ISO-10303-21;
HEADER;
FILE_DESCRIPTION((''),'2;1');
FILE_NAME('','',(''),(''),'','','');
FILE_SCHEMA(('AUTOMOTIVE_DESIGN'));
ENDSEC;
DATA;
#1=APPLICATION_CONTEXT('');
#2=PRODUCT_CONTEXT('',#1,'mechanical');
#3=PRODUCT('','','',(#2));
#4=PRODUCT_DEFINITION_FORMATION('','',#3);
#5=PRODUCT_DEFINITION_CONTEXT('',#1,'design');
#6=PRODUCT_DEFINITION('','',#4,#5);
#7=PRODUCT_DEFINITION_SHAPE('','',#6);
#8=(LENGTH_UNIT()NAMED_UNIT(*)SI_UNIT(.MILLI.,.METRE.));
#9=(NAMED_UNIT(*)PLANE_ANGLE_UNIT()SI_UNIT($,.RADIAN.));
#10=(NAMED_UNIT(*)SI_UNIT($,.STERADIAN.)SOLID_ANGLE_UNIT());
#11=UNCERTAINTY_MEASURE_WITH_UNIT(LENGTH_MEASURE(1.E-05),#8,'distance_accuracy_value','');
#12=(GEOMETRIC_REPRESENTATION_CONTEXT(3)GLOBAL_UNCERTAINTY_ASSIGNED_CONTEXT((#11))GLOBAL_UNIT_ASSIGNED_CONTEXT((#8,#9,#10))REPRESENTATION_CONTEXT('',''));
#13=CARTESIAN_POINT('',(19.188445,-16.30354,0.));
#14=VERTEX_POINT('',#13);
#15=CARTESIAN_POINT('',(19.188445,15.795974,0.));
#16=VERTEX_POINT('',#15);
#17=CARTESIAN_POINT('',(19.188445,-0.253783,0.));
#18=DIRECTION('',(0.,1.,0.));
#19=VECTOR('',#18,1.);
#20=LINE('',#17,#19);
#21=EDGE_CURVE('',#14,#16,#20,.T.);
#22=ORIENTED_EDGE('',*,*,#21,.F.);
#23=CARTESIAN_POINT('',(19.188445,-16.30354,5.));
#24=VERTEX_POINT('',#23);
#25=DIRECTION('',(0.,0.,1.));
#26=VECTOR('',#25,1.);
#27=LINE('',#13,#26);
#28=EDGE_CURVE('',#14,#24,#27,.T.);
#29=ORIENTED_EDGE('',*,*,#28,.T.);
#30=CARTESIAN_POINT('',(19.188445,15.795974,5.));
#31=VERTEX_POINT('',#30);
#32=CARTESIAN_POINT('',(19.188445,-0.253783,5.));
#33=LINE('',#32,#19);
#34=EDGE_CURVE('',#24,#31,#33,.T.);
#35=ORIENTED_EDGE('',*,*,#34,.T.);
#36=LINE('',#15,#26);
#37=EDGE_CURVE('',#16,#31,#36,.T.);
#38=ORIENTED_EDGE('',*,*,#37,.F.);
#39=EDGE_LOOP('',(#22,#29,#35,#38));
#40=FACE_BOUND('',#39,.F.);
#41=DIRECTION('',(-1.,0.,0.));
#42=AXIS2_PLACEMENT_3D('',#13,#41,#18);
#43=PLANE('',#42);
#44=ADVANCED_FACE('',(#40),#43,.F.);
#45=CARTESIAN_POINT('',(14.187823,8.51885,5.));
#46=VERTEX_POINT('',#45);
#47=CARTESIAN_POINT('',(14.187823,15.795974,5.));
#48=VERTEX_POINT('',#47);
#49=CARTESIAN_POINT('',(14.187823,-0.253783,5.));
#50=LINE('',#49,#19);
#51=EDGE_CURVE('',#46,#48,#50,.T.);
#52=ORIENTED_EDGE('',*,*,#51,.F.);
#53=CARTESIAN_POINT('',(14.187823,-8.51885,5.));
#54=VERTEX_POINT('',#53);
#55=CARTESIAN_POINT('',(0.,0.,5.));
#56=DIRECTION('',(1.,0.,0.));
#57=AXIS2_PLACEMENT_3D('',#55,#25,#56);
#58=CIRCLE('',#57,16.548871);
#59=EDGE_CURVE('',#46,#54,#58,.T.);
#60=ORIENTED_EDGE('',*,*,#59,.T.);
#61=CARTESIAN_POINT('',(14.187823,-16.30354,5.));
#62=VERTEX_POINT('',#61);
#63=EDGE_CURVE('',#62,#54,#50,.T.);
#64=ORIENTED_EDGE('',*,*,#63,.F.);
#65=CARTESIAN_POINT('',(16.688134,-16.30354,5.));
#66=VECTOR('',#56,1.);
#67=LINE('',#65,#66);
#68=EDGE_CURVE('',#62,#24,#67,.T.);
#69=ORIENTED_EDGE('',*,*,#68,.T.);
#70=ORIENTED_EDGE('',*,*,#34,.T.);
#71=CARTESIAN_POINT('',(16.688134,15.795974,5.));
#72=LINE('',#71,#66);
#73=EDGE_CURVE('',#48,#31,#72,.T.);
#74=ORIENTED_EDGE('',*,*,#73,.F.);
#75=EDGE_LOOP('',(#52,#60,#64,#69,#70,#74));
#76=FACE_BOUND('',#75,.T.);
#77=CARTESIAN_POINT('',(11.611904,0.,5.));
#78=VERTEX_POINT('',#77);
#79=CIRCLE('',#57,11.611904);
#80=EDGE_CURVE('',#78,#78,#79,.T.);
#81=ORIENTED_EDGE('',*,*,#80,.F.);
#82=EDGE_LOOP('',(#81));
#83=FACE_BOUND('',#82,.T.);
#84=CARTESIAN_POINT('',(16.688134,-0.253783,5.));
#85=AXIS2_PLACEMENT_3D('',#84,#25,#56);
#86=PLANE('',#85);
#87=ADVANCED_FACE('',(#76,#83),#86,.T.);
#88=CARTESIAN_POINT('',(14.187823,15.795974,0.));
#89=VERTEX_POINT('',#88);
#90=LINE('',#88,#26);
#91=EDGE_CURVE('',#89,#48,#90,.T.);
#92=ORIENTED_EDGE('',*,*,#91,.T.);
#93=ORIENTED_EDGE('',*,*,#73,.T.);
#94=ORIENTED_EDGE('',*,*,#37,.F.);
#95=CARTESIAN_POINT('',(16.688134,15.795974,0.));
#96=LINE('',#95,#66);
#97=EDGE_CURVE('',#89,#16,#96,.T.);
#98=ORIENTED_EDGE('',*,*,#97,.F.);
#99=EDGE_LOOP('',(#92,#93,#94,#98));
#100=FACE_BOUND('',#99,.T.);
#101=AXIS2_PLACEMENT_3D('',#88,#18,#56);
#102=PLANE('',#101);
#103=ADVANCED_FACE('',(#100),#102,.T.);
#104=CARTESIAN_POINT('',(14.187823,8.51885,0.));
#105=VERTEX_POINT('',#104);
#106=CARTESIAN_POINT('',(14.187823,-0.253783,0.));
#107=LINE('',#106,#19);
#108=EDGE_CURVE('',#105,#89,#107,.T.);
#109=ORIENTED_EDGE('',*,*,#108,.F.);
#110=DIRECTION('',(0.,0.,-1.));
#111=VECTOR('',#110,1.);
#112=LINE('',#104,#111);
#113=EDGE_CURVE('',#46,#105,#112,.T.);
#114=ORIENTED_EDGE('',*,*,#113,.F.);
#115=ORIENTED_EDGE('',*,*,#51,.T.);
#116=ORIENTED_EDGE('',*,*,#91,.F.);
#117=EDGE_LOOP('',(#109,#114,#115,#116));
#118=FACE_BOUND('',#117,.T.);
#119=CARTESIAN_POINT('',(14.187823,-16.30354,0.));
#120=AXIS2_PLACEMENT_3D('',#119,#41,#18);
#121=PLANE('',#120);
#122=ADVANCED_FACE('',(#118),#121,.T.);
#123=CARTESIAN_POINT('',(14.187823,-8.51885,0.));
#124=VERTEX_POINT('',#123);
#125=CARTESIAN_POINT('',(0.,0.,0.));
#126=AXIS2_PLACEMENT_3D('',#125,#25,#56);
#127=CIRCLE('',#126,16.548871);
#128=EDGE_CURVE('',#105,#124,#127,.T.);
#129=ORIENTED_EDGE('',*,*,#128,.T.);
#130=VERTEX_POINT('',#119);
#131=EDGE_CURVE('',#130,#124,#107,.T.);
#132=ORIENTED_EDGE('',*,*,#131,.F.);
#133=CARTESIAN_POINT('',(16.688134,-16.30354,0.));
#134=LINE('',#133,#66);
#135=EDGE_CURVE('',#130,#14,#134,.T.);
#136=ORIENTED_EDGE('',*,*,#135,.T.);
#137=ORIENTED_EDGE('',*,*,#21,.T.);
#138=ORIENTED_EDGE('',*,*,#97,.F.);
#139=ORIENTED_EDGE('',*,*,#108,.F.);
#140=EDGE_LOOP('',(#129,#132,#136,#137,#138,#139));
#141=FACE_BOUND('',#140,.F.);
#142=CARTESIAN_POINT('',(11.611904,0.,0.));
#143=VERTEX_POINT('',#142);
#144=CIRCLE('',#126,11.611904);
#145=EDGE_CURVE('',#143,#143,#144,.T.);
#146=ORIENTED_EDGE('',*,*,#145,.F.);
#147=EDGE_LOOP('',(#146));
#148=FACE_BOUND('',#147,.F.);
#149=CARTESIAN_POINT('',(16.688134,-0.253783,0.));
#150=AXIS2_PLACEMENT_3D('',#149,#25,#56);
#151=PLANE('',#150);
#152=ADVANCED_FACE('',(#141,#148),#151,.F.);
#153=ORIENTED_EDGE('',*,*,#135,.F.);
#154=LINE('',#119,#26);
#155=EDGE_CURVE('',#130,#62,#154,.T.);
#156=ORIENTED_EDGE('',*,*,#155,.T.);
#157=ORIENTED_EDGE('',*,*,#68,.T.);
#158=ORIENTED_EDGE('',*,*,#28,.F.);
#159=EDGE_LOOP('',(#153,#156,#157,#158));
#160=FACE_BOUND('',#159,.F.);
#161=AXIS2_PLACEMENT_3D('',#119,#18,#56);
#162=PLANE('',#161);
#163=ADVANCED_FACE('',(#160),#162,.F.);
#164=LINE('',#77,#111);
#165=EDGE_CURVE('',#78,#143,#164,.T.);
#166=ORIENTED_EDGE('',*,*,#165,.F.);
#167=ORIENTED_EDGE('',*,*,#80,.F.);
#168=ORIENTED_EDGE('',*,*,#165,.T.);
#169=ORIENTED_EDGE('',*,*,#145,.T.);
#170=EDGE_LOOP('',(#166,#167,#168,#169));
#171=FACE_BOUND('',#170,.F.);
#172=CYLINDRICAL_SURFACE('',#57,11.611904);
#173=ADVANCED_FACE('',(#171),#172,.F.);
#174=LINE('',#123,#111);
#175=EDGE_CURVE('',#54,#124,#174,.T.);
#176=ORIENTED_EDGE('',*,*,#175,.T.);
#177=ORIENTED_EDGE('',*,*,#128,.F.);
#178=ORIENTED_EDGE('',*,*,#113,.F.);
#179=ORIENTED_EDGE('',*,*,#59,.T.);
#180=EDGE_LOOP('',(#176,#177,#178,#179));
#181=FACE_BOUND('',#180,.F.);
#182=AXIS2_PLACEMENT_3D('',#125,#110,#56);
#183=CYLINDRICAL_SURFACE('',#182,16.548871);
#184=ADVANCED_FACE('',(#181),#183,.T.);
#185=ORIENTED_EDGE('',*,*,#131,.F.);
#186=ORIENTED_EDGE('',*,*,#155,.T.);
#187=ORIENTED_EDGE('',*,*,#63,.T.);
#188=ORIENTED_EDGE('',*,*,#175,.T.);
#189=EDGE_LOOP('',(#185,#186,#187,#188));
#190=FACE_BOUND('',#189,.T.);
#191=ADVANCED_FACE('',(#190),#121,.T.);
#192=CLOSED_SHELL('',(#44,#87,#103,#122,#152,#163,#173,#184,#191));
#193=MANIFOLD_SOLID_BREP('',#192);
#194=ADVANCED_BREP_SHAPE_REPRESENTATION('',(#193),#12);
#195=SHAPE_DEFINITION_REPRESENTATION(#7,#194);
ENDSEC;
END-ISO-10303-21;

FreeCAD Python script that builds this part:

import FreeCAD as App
import Part
import Sketcher
Q = App.Units.Quantity


def add_polygon(sketch, points):
    """Adds a closed chain of lines whose ends are joined by coincident constraints."""
    first, n = sketch.GeometryCount, len(points)
    for a, b in zip(points, points[1:] + points[:1]):
        sketch.addGeometry(Part.LineSegment(App.Vector(*a, 0), App.Vector(*b, 0)), False)
    for i in range(n):
        sketch.addConstraint(Sketcher.Constraint("Coincident", first + i, 2, first + (i + 1) % n, 1))

doc = App.newDocument("Part")
body = doc.addObject("PartDesign::Body", "Body")

# Sketch on XY plane
sketch1 = doc.addObject("Sketcher::SketchObject", "Sketch")
body.addObject(sketch1)
sketch1.AttachmentSupport = (doc.XY_Plane, [""])
sketch1.MapMode = "FlatFace"
sketch1.addGeometry(Part.Circle(App.Vector(0, 0, 0), App.Vector(0, 0, 1), 17), False)
sketch1.addConstraint([
    Sketcher.Constraint("Coincident", 0, 3, -1, 1),
    Sketcher.Constraint("Diameter", 0, Q("33.097742 mm")),
])
pad1 = doc.addObject("PartDesign::Pad", "Pad")
body.addObject(pad1)
pad1.Profile = sketch1
pad1.Length = 5

# Sketch on XY plane
sketch2 = doc.addObject("Sketcher::SketchObject", "Sketch001")
body.addObject(sketch2)
sketch2.AttachmentSupport = (doc.XY_Plane, [""])
sketch2.MapMode = "FlatFace"
sketch2.AttachmentOffset = App.Placement(App.Vector(0, 0, 5), App.Rotation())
sketch2.addGeometry(Part.Circle(App.Vector(0, 0, 0), App.Vector(0, 0, 1), 12), False)
sketch2.addConstraint([
    Sketcher.Constraint("Coincident", 0, 3, -1, 1),
    Sketcher.Constraint("Diameter", 0, Q("23.223808 mm")),
])
pocket1 = doc.addObject("PartDesign::Pocket", "Pocket")
body.addObject(pocket1)
pocket1.Profile = sketch2
pocket1.Length = 5

# Sketch on XY plane
sketch3 = doc.addObject("Sketcher::SketchObject", "Sketch002")
body.addObject(sketch3)
sketch3.AttachmentSupport = (doc.XY_Plane, [""])
sketch3.MapMode = "FlatFace"
add_polygon(sketch3, [(14, 16), (14, -16), (19, -16), (19, 16)])  # lines 0-3
sketch3.addConstraint([
    Sketcher.Constraint("Vertical", 0),
    Sketcher.Constraint("Horizontal", 1),
    Sketcher.Constraint("Vertical", 2),
    Sketcher.Constraint("Horizontal", 3),
    Sketcher.Constraint("DistanceX", 1, 1, 1, 2, Q("5.000622 mm")),
    Sketcher.Constraint("DistanceY", 0, 2, 0, 1, Q("32.099514 mm")),
    Sketcher.Constraint("DistanceY", 0, 2, -1, 1, Q("16.30354 mm")),
    Sketcher.Constraint("DistanceX", -1, 1, 0, 2, Q("14.187823 mm")),
])
pad2 = doc.addObject("PartDesign::Pad", "Pad001")
body.addObject(pad2)
pad2.Profile = sketch3
pad2.Length = 5

doc.recompute()
